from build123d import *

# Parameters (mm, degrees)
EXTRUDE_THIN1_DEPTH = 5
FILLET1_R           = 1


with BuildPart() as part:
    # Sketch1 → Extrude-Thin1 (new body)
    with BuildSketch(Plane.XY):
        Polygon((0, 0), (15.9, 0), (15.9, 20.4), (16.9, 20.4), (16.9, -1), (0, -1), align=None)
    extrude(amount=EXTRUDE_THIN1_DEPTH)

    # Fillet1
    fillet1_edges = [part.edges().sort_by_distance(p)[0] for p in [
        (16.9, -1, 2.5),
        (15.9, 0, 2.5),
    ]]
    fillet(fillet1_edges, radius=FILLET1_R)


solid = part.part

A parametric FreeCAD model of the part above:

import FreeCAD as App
import Part
import Sketcher

V = App.Vector
Q = App.Units.Quantity


def edges_at(feature, points):
    """Names of the edges that pass closest to the given points."""
    edges = feature.Shape.Edges
    near = lambda p: min(range(len(edges)), key=lambda i: edges[i].distToShape(Part.Vertex(*p))[0])
    return sorted({f"Edge{near(p) + 1}" for p in points})


def add_polygon(sketch, points):
    """Adds a closed chain of lines whose ends are joined by coincident constraints."""
    first, n = sketch.GeometryCount, len(points)
    for a, b in zip(points, points[1:] + points[:1]):
        sketch.addGeometry(Part.LineSegment(App.Vector(*a, 0), App.Vector(*b, 0)), False)
    for i in range(n):
        sketch.addConstraint(Sketcher.Constraint("Coincident", first + i, 2, first + (i + 1) % n, 1))

doc = App.newDocument("Part")
body = doc.addObject("PartDesign::Body", "Body")

# Sketch on XY plane
sketch1 = body.newObject("Sketcher::SketchObject", "Sketch")
sketch1.AttachmentSupport = (doc.getObject("XY_Plane"), [""])
sketch1.MapMode = "FlatFace"
add_polygon(sketch1, [(15.9, 0), (0, 0), (0, -1), (16.9, -1), (16.9, 20.4), (15.9, 20.4)])  # lines 0-5
sketch1.addConstraint([
    Sketcher.Constraint("Horizontal", 0),
    Sketcher.Constraint("Vertical", 1),
    Sketcher.Constraint("Horizontal", 2),
    Sketcher.Constraint("Vertical", 3),
    Sketcher.Constraint("Horizontal", 4),
    Sketcher.Constraint("Vertical", 5),
    Sketcher.Constraint("Coincident", 0, 2, -1, 1),
    Sketcher.Constraint("Equal", 4, 1),
    Sketcher.Constraint("DistanceX", 4, 2, 4, 1, Q("1 mm")),
    Sketcher.Constraint("DistanceX", 0, 2, 0, 1, Q("15.9 mm")),
    Sketcher.Constraint("DistanceY", 3, 1, 3, 2, Q("21.4 mm")),
])
pad1 = body.newObject("PartDesign::Pad", "Pad")
pad1.Profile = sketch1
pad1.Length = 5
doc.recompute()

fillet = body.newObject("PartDesign::Fillet", "Fillet")
fillet.Base = (pad1, edges_at(pad1, [(16.9, -1, 2.5), (15.9, 0, 2.5)]))
fillet.Radius = 1

doc.recompute()
